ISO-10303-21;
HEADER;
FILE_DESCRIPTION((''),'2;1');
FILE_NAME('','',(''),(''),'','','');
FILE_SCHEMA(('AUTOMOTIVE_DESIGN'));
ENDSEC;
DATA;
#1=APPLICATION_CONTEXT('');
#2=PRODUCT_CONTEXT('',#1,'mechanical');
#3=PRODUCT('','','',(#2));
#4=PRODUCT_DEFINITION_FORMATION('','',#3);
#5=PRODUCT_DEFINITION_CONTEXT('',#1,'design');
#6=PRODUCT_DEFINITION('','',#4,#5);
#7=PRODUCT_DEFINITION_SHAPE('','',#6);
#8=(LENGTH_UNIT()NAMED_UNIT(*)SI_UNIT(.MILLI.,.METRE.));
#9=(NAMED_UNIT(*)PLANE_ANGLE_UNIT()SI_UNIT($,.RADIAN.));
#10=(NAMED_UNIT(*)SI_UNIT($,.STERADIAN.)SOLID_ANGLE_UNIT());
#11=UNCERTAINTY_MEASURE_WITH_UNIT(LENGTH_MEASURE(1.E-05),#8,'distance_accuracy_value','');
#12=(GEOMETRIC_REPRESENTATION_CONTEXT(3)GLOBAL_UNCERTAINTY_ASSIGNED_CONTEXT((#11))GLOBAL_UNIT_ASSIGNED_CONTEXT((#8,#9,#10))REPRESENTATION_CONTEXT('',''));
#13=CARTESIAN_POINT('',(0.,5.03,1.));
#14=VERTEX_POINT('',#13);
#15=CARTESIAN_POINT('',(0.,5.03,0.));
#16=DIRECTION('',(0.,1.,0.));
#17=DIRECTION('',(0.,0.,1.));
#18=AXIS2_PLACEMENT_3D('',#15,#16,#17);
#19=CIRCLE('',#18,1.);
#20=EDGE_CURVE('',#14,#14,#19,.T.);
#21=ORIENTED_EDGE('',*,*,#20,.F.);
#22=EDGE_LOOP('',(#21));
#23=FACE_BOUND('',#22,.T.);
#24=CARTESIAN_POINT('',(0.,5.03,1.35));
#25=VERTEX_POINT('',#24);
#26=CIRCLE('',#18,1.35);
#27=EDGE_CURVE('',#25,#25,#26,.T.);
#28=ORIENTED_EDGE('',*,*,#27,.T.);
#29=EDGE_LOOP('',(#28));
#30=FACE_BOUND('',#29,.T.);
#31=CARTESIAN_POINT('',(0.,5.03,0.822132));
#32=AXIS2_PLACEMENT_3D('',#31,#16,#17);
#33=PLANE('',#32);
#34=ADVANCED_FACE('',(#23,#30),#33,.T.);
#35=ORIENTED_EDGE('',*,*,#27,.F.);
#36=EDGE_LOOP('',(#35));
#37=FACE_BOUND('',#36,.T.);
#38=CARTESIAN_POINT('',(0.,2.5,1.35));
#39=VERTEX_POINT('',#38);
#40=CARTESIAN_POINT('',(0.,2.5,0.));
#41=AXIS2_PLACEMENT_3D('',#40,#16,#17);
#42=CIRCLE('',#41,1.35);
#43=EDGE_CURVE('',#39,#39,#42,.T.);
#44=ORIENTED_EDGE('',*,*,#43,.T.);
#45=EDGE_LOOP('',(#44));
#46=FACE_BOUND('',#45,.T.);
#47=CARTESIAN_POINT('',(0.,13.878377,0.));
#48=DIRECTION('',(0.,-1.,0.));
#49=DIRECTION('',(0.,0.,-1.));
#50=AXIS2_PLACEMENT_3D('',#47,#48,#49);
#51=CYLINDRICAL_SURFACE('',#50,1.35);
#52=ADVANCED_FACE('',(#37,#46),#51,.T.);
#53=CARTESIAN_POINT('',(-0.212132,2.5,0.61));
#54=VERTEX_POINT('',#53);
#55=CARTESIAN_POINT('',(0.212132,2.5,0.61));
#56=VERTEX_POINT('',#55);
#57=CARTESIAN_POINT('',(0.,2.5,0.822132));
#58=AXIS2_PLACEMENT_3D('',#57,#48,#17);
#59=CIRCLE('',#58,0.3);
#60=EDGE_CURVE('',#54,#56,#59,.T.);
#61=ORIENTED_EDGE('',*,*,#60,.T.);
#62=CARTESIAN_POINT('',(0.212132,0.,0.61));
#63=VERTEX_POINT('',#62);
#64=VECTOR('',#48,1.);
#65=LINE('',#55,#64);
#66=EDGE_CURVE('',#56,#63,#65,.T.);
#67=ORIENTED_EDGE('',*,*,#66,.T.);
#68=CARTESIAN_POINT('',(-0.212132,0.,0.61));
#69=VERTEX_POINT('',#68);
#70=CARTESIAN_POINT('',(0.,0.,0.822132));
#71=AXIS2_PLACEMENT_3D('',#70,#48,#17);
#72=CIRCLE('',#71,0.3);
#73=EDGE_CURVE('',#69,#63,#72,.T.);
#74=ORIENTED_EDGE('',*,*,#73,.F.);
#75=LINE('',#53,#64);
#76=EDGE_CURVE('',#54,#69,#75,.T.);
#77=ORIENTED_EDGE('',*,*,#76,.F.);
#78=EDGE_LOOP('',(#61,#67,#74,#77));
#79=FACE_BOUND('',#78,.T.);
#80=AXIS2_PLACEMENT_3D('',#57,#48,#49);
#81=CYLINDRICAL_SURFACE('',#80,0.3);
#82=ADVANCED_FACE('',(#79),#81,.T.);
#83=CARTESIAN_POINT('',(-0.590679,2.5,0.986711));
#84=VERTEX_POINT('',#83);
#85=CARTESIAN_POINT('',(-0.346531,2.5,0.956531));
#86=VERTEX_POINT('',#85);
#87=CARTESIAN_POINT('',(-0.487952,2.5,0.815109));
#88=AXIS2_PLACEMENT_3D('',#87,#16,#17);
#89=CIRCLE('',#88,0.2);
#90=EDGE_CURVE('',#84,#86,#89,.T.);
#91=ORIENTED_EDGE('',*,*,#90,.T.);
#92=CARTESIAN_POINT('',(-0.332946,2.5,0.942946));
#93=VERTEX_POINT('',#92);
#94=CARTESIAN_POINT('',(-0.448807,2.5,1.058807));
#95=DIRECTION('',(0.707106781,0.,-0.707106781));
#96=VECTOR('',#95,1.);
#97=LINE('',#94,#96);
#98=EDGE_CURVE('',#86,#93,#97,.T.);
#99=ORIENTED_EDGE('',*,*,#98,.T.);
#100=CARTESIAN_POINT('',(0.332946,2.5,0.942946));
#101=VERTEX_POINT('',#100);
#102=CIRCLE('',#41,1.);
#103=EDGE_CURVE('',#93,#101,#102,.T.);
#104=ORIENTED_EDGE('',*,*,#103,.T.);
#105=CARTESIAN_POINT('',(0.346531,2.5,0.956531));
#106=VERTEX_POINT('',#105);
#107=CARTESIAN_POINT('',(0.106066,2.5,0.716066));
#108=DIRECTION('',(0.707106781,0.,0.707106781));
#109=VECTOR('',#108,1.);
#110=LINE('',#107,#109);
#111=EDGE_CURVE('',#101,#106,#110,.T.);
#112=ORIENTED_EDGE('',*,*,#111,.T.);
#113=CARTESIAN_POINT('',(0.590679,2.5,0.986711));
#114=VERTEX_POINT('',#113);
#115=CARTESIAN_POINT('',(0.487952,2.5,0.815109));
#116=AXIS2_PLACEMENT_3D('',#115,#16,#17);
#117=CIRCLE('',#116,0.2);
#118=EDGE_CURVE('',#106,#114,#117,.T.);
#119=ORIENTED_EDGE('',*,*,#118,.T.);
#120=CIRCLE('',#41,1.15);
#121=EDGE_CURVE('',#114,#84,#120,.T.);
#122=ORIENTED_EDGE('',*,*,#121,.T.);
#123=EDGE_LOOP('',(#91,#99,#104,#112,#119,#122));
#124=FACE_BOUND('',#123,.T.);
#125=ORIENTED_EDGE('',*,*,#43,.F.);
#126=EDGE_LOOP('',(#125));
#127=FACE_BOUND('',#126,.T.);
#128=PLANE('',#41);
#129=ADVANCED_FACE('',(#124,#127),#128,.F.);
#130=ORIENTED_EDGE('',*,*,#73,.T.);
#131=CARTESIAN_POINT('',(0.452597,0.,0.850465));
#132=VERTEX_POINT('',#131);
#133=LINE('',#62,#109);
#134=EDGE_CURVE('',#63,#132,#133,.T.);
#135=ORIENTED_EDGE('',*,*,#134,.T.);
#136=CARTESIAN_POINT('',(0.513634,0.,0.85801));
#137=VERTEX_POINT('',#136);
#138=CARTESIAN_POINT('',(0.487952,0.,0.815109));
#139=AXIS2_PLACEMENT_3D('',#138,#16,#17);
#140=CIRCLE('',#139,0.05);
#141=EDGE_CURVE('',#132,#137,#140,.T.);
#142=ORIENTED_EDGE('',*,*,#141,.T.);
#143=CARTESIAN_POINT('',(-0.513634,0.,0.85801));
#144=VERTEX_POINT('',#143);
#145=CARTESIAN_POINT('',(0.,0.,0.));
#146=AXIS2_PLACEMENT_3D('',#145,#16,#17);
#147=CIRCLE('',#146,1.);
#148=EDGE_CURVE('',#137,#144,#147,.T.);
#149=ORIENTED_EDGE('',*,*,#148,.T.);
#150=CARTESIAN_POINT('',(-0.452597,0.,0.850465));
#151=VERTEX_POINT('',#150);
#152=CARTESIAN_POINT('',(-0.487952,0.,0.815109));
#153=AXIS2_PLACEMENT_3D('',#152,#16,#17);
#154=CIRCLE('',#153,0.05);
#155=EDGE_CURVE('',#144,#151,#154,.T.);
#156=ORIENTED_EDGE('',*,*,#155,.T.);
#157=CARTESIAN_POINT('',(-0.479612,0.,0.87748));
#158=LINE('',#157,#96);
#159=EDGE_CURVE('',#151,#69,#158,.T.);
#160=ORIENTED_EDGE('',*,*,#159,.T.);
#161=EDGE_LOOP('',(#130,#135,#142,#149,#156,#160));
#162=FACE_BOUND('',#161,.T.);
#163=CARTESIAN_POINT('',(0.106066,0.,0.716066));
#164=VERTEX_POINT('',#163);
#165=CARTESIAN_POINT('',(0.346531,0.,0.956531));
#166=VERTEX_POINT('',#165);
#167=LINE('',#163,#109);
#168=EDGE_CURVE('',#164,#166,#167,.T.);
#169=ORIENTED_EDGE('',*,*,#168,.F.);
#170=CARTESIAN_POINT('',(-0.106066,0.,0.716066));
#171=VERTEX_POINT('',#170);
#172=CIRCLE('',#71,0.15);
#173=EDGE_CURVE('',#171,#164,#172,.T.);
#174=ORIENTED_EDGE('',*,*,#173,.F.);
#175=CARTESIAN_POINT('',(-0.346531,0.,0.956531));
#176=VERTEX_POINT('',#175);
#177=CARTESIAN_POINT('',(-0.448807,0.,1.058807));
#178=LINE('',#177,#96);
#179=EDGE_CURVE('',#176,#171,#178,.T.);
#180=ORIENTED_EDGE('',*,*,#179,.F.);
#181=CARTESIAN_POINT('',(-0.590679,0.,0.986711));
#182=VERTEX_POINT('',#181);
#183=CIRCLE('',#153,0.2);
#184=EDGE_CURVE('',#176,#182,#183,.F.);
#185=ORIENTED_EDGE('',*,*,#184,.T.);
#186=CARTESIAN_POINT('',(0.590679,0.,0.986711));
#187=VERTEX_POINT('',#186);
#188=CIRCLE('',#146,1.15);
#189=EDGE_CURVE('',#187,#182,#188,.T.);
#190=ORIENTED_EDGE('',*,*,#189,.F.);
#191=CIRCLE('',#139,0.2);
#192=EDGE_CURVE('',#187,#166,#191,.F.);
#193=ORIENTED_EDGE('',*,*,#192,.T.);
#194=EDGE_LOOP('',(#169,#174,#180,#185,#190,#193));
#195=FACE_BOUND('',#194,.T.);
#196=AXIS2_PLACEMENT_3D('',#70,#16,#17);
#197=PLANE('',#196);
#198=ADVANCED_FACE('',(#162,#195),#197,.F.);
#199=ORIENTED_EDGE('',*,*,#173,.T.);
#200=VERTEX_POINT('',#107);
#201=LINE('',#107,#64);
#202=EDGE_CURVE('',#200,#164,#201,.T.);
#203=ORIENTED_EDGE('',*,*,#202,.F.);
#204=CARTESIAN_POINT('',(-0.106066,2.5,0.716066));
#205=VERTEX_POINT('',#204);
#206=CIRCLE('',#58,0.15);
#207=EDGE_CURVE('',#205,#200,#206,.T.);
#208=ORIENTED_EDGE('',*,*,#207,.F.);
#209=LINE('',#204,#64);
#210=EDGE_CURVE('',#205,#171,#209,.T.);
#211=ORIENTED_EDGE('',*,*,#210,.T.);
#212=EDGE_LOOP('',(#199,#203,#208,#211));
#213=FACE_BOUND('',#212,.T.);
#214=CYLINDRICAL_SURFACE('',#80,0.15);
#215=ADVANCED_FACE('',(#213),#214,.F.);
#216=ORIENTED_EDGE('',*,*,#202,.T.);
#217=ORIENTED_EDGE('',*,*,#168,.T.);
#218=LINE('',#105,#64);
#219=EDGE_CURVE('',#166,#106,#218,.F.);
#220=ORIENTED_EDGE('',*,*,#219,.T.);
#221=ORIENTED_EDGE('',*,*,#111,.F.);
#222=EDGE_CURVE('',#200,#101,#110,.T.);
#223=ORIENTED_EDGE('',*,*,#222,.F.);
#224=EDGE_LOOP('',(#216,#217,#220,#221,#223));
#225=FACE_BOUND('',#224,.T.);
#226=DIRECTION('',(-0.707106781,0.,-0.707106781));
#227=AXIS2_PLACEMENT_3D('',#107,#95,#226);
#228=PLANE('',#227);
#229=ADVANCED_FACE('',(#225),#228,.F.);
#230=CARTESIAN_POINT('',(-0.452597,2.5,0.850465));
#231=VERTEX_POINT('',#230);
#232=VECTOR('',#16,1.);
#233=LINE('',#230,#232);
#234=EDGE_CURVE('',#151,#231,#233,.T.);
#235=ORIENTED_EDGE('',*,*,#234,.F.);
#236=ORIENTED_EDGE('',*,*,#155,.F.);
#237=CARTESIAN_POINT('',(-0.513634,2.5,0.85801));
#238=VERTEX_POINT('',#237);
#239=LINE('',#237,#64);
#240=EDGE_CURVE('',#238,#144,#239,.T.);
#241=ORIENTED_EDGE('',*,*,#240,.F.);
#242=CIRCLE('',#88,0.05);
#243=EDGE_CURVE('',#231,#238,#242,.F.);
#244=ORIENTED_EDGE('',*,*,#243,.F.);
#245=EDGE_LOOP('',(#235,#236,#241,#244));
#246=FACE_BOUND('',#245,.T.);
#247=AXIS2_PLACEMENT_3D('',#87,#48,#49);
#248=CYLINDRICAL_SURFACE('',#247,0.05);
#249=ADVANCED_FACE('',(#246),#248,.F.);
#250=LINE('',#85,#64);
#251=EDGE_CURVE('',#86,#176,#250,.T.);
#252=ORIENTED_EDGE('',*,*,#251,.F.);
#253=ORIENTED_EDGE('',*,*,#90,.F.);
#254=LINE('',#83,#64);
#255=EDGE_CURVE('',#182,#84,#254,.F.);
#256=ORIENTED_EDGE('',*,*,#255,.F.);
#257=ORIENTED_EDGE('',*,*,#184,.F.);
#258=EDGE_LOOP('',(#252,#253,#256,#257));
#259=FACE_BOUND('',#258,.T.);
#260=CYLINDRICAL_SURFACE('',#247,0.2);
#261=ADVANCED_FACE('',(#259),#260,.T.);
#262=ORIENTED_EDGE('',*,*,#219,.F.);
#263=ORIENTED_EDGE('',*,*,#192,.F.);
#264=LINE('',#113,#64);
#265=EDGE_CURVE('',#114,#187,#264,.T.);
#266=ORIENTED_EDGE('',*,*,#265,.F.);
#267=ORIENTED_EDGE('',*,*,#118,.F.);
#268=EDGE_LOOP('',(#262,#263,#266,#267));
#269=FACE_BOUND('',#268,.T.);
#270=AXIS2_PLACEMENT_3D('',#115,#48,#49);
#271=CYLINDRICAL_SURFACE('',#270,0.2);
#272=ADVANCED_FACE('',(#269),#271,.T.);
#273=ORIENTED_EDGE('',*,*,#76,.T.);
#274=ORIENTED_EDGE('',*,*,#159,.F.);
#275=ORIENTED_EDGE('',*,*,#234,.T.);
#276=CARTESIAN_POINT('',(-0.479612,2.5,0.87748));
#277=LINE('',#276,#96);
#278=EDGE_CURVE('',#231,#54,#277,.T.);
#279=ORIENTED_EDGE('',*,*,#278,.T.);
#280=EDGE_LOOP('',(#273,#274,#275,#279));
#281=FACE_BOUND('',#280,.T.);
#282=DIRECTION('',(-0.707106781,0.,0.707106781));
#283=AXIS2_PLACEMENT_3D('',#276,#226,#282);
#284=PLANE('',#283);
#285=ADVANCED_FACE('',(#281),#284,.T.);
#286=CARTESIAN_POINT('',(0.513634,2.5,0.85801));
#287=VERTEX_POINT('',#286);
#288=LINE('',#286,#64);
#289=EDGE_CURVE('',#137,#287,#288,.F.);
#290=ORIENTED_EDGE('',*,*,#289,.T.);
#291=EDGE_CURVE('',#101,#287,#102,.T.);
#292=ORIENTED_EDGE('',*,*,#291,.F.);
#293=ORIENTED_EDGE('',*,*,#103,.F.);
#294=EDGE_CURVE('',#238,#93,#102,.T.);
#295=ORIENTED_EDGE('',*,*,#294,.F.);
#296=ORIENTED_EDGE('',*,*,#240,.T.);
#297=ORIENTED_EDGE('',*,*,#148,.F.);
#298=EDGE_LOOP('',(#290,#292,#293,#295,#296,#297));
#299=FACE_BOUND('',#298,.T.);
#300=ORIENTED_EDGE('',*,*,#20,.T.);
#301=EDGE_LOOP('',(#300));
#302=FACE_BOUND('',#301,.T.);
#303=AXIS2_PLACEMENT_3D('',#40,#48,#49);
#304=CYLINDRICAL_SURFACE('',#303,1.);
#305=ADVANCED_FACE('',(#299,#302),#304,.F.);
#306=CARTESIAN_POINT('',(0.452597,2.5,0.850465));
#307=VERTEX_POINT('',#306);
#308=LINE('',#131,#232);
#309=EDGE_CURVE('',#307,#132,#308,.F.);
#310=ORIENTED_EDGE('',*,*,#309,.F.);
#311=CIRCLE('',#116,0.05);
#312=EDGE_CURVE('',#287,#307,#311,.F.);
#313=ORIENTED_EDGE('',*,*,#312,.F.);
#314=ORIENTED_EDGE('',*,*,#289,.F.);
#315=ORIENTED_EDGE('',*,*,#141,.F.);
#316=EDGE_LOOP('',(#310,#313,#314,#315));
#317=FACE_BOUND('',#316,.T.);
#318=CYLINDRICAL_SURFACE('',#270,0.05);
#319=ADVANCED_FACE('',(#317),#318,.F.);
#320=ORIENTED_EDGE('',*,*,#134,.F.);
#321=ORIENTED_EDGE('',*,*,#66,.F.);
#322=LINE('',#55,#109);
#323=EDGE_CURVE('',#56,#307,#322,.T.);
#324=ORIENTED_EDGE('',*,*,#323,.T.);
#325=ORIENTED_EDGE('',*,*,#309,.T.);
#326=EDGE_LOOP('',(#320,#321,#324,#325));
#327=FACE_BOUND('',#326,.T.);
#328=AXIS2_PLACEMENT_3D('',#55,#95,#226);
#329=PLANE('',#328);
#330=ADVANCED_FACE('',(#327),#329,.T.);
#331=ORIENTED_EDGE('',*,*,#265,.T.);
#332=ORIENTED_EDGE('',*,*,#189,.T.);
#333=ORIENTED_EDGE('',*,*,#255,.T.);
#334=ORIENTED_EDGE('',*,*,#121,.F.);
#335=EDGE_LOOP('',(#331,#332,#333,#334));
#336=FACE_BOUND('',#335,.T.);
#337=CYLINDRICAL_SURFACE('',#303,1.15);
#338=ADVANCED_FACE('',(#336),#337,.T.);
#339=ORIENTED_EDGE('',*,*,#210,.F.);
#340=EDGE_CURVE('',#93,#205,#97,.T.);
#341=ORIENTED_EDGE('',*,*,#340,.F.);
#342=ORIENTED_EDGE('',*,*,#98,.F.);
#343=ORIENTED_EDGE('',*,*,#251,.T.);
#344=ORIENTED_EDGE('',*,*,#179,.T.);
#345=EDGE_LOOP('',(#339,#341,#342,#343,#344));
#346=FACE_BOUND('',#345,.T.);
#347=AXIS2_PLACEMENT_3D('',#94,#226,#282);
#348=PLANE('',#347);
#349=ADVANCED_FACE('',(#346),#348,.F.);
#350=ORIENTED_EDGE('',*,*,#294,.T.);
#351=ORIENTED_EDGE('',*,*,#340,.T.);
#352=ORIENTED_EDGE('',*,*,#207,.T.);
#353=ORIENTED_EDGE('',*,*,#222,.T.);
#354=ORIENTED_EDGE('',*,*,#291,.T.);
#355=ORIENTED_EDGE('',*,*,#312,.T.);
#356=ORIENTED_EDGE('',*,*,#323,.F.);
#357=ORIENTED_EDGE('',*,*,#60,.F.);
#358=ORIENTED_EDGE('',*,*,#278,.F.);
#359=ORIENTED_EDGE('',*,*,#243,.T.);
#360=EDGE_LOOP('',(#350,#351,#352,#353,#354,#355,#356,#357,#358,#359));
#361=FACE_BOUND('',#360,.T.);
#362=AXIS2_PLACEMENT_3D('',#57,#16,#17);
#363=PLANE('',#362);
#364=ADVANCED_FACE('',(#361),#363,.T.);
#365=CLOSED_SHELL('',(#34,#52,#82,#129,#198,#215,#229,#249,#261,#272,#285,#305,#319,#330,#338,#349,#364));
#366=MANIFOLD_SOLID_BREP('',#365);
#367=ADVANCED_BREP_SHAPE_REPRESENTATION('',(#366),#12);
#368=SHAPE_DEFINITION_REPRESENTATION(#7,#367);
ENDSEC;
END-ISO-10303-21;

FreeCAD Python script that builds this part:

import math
import FreeCAD as App
import Part
import Sketcher


def edges_at(feature, points):
    """Names of the edges that pass closest to the given points."""
    edges = feature.Shape.Edges
    near = lambda p: min(range(len(edges)), key=lambda i: edges[i].distToShape(Part.Vertex(*p))[0])
    return sorted({f"Edge{near(p) + 1}" for p in points})

doc = App.newDocument("Part")
params = doc.addObject("Spreadsheet::Sheet", "Params")
for row, (alias, value) in enumerate([
    ("sketch1_radius", "1 mm"),
    ("sketch1_radius2", "0.3 mm"),
    ("sketch1_radius3", "0.15 mm"),
    ("sketch1_radius4", "1.15 mm"),
    ("pad1_length", "2.5 mm"),
    ("fillet_radius", "0.05 mm"),
    ("fillet2_radius", "0.2 mm"),
    ("sketch2_diameter", "2 mm"),
    ("sketch2_diameter2", "2.7 mm"),
    ("pad2_length", "2.53 mm"),
], start=1):
    params.set(f"A{row}", alias)
    params.set(f"B{row}", "=" + value)
    params.setAlias(f"B{row}", alias)

body = doc.addObject("PartDesign::Body", "Body")

# Sketch on XZ plane
sketch1 = body.newObject("Sketcher::SketchObject", "Sketch")
sketch1.AttachmentSupport = (doc.getObject("XZ_Plane"), [""])
sketch1.MapMode = "FlatFace"
sketch1.addGeometry([
    Part.LineSegment(App.Vector(-0.45, 1.06, 0), App.Vector(-0.11, 0.72, 0)),  # 0
    Part.ArcOfCircle(Part.Circle(App.Vector(0, 0.82, 0), App.Vector(0, 0, 1), 0.15), math.radians(-135), math.radians(-45)),  # 1
    Part.LineSegment(App.Vector(0.11, 0.72, 0), App.Vector(0.45, 1.06, 0)),  # 2
    Part.ArcOfCircle(Part.Circle(App.Vector(0, 0, 0), App.Vector(0, 0, 1), 1.15), math.radians(113), math.radians(427)),  # 3
    Part.LineSegment(App.Vector(-0.21, 0.61, 0), App.Vector(-0.48, 0.88, 0)),  # 4
    Part.ArcOfCircle(Part.Circle(App.Vector(0, 0, 0), App.Vector(0, 0, 1), 1), math.radians(119), math.radians(421)),  # 5
    Part.LineSegment(App.Vector(0.48, 0.88, 0), App.Vector(0.21, 0.61, 0)),  # 6
    Part.ArcOfCircle(Part.Circle(App.Vector(0, 0.82, 0), App.Vector(0, 0, 1), 0.3), math.radians(-135), math.radians(-45)),  # 7
], False)
sketch1.addConstraint([
    Sketcher.Constraint("Tangent", 0, 2, 1, 1),
    Sketcher.Constraint("Tangent", 1, 2, 2, 1),
    Sketcher.Constraint("Coincident", 2, 2, 3, 2),
    Sketcher.Constraint("Coincident", 3, 1, 0, 1),
    Sketcher.Constraint("Coincident", 4, 2, 5, 1),
    Sketcher.Constraint("Coincident", 5, 2, 6, 1),
    Sketcher.Constraint("Tangent", 6, 2, 7, 2),
    Sketcher.Constraint("Tangent", 7, 1, 4, 1),
    Sketcher.Constraint("Coincident", 3, 3, -1, 1),
    Sketcher.Constraint("Coincident", 5, 3, -1, 1),
    Sketcher.Constraint("Coincident", 7, 3, 1, 3),
    Sketcher.Constraint("Symmetric", 0, 2, 1, 2, -2),
    Sketcher.Constraint("Perpendicular", 0, 2),
    Sketcher.Constraint("Perpendicular", 2, 4),
    Sketcher.Constraint("Perpendicular", 4, 6),
    Sketcher.Constraint("Radius", 5, 1.0),
    Sketcher.Constraint("Radius", 7, 0.3),
    Sketcher.Constraint("Radius", 1, 0.15),
    Sketcher.Constraint("Radius", 3, 1.15),
    Sketcher.Constraint("DistanceY", -1, 1, 6, 2, 0.61),
])
sketch1.setExpression("Constraints[15]", "Params.sketch1_radius")
sketch1.setExpression("Constraints[16]", "Params.sketch1_radius2")
sketch1.setExpression("Constraints[17]", "Params.sketch1_radius3")
sketch1.setExpression("Constraints[18]", "Params.sketch1_radius4")
pad1 = body.newObject("PartDesign::Pad", "Pad")
pad1.Profile = sketch1
pad1.setExpression("Length", "Params.pad1_length")
pad1.Reversed = True
doc.recompute()

fillet = body.newObject("PartDesign::Fillet", "Fillet")
fillet.Base = (pad1, edges_at(pad1, [(0.48, 1.25, 0.877), (-0.48, 1.25, 0.877)]))
fillet.setExpression("Radius", "Params.fillet_radius")
doc.recompute()

fillet2 = body.newObject("PartDesign::Fillet", "Fillet001")
fillet2.Base = (fillet, edges_at(fillet, [(-0.449, 1.25, 1.059), (0.449, 1.25, 1.059)]))
fillet2.setExpression("Radius", "Params.fillet2_radius")

# Sketch on XZ plane
sketch2 = body.newObject("Sketcher::SketchObject", "Sketch001")
sketch2.AttachmentSupport = (doc.getObject("XZ_Plane"), [""])
sketch2.MapMode = "FlatFace"
sketch2.AttachmentOffset = App.Placement(App.Vector(0, 0, -2.5), App.Rotation())
sketch2.addGeometry([
    Part.Circle(App.Vector(0, 0, 0), App.Vector(0, 0, 1), 1.4),
    Part.Circle(App.Vector(0, 0, 0), App.Vector(0, 0, 1), 1),
], False)
sketch2.addConstraint([
    Sketcher.Constraint("Coincident", 0, 3, -1, 1),
    Sketcher.Constraint("Coincident", 1, 3, -1, 1),
    Sketcher.Constraint("Diameter", 1, 2.0),
    Sketcher.Constraint("Diameter", 0, 2.7),
])
sketch2.setExpression("Constraints[2]", "Params.sketch2_diameter")
sketch2.setExpression("Constraints[3]", "Params.sketch2_diameter2")
pad2 = body.newObject("PartDesign::Pad", "Pad001")
pad2.Profile = sketch2
pad2.setExpression("Length", "Params.pad2_length")
pad2.Reversed = True

doc.recompute()
